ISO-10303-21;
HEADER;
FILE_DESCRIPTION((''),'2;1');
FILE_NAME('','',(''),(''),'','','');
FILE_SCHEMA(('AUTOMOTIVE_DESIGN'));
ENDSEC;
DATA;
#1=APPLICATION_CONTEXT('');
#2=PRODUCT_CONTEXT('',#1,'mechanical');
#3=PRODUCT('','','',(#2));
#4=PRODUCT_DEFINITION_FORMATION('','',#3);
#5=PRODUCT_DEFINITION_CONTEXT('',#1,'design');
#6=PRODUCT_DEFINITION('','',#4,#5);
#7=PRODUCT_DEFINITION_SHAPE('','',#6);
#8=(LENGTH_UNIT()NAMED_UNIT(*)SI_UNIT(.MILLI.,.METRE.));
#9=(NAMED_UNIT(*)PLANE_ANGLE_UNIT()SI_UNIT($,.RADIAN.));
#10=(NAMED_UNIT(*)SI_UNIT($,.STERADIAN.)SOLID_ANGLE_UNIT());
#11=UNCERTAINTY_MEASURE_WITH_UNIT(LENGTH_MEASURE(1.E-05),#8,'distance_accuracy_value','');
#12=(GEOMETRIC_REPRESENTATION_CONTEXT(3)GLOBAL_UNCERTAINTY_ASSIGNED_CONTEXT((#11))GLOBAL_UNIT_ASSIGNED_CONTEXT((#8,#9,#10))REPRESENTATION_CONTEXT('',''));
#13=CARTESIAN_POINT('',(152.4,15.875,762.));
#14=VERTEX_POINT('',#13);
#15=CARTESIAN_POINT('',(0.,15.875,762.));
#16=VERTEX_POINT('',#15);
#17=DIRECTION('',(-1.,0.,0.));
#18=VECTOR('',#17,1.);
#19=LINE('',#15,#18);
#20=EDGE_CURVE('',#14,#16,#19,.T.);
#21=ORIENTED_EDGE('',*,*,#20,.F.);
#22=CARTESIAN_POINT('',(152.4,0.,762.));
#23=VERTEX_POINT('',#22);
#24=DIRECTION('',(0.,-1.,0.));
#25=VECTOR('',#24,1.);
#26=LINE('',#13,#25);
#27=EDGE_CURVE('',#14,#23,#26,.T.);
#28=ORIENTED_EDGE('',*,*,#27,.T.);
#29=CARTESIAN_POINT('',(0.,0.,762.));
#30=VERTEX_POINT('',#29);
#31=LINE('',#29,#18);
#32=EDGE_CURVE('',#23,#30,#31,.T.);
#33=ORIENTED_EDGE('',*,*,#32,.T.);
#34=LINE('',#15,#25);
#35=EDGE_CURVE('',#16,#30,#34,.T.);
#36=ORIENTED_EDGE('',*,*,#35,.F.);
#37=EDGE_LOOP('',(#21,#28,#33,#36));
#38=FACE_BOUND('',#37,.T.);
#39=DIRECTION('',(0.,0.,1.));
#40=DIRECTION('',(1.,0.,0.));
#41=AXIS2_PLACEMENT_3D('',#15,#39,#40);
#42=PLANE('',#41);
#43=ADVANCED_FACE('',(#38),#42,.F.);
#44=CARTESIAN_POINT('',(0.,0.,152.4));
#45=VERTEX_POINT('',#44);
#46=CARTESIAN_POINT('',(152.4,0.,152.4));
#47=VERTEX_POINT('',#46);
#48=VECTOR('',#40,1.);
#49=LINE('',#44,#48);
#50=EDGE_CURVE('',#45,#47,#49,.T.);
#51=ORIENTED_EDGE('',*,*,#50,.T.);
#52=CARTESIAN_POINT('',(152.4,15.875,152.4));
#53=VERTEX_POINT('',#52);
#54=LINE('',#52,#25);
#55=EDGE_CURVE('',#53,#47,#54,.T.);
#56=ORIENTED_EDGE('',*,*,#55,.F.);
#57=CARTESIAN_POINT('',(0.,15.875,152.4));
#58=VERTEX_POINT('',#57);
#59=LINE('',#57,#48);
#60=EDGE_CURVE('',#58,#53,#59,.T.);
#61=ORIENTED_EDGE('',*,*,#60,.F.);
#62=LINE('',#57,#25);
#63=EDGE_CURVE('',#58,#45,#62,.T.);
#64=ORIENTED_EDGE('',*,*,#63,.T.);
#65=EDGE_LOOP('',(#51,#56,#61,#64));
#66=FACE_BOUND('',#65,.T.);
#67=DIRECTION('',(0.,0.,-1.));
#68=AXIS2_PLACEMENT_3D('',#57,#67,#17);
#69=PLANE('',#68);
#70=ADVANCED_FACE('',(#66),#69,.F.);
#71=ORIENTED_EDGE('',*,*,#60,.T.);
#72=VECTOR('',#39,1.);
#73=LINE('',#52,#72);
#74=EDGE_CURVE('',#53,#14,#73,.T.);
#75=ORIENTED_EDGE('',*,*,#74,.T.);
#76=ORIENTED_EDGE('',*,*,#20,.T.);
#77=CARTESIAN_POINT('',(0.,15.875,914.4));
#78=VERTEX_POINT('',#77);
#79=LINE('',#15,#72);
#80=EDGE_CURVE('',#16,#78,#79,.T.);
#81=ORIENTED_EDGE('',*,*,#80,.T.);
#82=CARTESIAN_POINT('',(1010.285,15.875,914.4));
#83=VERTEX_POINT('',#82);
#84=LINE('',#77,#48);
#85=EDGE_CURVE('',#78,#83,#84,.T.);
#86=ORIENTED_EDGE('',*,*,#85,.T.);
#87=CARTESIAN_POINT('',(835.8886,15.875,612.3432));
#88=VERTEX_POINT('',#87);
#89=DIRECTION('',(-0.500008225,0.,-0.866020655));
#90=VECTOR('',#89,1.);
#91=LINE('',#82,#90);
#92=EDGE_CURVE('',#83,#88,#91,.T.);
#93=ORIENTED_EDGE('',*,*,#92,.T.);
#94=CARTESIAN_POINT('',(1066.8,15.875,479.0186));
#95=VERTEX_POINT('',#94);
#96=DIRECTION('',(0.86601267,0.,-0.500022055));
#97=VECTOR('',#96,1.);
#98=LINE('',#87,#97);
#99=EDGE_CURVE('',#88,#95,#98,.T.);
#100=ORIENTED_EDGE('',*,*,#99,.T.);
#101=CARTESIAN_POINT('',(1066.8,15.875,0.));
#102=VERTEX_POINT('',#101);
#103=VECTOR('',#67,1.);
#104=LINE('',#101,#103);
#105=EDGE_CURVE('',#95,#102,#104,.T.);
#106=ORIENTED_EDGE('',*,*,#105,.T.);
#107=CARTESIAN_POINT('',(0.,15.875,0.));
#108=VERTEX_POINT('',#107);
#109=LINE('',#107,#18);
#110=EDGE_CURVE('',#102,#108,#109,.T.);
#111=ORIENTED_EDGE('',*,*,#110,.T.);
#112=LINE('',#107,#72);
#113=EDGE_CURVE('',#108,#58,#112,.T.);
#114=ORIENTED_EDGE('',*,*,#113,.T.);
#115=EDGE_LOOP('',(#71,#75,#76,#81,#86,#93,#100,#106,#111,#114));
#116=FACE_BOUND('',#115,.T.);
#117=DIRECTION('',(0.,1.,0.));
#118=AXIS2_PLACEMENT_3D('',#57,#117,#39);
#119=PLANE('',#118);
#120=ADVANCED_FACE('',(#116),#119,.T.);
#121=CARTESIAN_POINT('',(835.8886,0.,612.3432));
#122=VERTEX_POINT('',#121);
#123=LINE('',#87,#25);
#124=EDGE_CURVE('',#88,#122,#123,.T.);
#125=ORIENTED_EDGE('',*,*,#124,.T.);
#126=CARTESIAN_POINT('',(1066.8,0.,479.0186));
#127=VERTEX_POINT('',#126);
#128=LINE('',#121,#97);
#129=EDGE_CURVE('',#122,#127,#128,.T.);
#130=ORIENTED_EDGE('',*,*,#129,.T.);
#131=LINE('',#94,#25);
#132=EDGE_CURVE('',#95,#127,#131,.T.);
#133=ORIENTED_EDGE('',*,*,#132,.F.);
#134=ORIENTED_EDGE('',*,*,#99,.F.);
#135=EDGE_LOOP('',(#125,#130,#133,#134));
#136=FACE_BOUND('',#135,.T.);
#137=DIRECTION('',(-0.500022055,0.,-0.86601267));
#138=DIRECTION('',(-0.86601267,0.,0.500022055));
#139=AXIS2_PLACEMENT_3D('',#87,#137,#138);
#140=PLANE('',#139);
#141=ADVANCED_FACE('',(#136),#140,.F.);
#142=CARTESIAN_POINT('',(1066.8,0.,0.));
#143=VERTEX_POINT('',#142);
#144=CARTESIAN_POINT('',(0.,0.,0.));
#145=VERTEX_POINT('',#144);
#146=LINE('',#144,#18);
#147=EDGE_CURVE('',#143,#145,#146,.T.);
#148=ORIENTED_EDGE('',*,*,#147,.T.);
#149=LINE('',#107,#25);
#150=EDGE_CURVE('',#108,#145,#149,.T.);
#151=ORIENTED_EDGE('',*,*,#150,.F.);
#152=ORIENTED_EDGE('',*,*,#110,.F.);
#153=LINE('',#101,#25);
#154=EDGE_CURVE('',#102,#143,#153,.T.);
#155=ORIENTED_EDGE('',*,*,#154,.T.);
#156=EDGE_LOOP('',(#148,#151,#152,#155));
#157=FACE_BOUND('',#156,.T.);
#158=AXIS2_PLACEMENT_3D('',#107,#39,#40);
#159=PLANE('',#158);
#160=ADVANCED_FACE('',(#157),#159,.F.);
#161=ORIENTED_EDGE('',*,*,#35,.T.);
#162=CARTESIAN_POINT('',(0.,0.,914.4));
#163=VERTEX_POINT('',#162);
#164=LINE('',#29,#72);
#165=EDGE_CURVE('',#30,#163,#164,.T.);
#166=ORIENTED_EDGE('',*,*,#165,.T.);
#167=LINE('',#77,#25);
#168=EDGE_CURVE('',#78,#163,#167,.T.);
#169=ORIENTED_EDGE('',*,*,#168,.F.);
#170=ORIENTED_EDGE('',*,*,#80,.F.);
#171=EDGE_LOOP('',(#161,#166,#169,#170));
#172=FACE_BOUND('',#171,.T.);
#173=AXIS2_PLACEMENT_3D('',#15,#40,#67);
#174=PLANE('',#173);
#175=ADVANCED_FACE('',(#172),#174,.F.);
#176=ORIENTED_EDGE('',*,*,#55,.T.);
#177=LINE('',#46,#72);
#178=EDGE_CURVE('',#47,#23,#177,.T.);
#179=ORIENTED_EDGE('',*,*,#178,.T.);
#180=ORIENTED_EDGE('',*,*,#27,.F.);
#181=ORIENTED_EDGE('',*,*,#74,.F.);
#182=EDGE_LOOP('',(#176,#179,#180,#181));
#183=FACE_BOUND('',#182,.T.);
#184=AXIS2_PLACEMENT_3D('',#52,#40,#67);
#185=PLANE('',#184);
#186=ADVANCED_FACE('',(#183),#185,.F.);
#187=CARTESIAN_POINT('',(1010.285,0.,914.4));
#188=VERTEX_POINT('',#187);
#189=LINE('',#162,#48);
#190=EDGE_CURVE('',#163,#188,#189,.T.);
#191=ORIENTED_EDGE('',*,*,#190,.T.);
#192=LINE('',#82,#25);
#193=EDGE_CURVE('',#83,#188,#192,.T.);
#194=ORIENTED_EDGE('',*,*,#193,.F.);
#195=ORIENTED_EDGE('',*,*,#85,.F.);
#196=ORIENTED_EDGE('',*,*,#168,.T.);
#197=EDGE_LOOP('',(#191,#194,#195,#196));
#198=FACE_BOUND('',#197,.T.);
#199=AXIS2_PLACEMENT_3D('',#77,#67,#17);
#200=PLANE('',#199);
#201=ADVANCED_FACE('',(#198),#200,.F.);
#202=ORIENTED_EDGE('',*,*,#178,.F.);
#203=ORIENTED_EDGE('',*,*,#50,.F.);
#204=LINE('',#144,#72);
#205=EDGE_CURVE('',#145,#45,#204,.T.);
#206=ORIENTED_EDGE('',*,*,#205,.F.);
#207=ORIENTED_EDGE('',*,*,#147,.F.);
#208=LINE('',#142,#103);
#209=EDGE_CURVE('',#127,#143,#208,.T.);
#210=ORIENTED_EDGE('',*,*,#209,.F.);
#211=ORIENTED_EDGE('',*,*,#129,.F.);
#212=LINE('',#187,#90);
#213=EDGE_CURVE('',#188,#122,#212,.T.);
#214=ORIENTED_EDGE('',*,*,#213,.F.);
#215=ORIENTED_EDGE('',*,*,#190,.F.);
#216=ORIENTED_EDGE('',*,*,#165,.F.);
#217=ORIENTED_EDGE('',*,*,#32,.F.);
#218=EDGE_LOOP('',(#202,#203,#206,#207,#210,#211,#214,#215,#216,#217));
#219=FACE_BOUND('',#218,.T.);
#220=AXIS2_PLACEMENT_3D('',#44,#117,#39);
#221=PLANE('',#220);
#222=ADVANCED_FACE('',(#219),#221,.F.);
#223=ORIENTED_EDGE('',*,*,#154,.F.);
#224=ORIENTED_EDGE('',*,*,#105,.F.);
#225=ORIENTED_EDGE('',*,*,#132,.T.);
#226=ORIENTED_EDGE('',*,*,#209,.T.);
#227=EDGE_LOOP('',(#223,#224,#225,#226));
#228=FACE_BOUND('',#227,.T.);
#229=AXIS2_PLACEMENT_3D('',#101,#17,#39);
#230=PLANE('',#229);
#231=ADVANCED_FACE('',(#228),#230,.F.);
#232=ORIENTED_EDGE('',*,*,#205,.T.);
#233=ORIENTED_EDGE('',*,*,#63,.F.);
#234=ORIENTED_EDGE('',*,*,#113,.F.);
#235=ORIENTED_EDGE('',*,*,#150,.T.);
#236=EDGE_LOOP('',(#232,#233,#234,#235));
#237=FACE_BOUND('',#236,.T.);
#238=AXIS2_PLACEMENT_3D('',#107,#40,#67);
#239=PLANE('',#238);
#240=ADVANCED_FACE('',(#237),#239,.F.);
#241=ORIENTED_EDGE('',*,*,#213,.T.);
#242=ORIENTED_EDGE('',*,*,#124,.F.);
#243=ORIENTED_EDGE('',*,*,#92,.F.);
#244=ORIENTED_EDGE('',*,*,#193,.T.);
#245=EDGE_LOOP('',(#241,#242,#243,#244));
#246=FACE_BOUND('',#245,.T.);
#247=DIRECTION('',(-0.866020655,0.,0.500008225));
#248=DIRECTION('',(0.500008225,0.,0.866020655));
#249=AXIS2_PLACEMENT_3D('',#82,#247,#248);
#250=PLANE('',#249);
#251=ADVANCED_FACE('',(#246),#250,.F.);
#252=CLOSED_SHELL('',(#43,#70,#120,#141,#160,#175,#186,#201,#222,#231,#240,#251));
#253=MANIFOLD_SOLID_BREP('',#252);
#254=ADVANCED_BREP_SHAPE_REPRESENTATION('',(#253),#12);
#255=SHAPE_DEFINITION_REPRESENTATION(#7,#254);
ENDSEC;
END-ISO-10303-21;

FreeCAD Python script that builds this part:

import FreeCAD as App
import Part
import Sketcher

V = App.Vector
Q = App.Units.Quantity


def add_polygon(sketch, points):
    """Adds a closed chain of lines whose ends are joined by coincident constraints."""
    first, n = sketch.GeometryCount, len(points)
    for a, b in zip(points, points[1:] + points[:1]):
        sketch.addGeometry(Part.LineSegment(App.Vector(*a, 0), App.Vector(*b, 0)), False)
    for i in range(n):
        sketch.addConstraint(Sketcher.Constraint("Coincident", first + i, 2, first + (i + 1) % n, 1))

doc = App.newDocument("Part")
body = doc.addObject("PartDesign::Body", "Body")

sketch1 = body.newObject("Sketcher::SketchObject", "Sketch")
sketch1.AttachmentSupport = (doc.getObject("XZ_Plane"), [""])
sketch1.MapMode = "FlatFace"
add_polygon(sketch1, [(152, 762), (0, 762), (0, 914), (1010, 914), (836, 612), (1067, 479), (1067, 0), (0, 0), (0, 152), (152, 152)])
sketch1.addConstraint([
    Sketcher.Constraint("Horizontal", 0),
    Sketcher.Constraint("Vertical", 1),
    Sketcher.Constraint("Horizontal", 2),
    Sketcher.Constraint("Vertical", 5),
    Sketcher.Constraint("Horizontal", 6),
    Sketcher.Constraint("Vertical", 7),
    Sketcher.Constraint("Horizontal", 8),
    Sketcher.Constraint("Vertical", 9),
    Sketcher.Constraint("Coincident", 6, 2, -1, 1),
    Sketcher.Constraint("PointOnObject", 0, 2, -2),
    Sketcher.Constraint("Equal", 8, 1),
    Sketcher.Constraint("Equal", 1, 7),
    Sketcher.Constraint("DistanceX", 0, 2, 0, 1, Q("6 in")),
    Sketcher.Constraint("DistanceX", 6, 2, 6, 1, Q("42 in")),
    Sketcher.Constraint("DistanceY", 9, 1, 9, 2, Q("24 in")),
    Sketcher.Constraint("DistanceX", 2, 1, 2, 2, Q("39.775 in")),
    Sketcher.Constraint("DistanceY", 5, 2, 5, 1, Q("18.859 in")),
    Sketcher.Constraint("DistanceX", -1, 1, 3, 2, Q("32.909 in")),
    Sketcher.Constraint("DistanceY", -1, 1, 3, 2, Q("24.108 in")),
])
pad1 = body.newObject("PartDesign::Pad", "Pad")
pad1.Profile = sketch1
pad1.Length = Q("0.625 in")
pad1.Reversed = True

doc.recompute()
